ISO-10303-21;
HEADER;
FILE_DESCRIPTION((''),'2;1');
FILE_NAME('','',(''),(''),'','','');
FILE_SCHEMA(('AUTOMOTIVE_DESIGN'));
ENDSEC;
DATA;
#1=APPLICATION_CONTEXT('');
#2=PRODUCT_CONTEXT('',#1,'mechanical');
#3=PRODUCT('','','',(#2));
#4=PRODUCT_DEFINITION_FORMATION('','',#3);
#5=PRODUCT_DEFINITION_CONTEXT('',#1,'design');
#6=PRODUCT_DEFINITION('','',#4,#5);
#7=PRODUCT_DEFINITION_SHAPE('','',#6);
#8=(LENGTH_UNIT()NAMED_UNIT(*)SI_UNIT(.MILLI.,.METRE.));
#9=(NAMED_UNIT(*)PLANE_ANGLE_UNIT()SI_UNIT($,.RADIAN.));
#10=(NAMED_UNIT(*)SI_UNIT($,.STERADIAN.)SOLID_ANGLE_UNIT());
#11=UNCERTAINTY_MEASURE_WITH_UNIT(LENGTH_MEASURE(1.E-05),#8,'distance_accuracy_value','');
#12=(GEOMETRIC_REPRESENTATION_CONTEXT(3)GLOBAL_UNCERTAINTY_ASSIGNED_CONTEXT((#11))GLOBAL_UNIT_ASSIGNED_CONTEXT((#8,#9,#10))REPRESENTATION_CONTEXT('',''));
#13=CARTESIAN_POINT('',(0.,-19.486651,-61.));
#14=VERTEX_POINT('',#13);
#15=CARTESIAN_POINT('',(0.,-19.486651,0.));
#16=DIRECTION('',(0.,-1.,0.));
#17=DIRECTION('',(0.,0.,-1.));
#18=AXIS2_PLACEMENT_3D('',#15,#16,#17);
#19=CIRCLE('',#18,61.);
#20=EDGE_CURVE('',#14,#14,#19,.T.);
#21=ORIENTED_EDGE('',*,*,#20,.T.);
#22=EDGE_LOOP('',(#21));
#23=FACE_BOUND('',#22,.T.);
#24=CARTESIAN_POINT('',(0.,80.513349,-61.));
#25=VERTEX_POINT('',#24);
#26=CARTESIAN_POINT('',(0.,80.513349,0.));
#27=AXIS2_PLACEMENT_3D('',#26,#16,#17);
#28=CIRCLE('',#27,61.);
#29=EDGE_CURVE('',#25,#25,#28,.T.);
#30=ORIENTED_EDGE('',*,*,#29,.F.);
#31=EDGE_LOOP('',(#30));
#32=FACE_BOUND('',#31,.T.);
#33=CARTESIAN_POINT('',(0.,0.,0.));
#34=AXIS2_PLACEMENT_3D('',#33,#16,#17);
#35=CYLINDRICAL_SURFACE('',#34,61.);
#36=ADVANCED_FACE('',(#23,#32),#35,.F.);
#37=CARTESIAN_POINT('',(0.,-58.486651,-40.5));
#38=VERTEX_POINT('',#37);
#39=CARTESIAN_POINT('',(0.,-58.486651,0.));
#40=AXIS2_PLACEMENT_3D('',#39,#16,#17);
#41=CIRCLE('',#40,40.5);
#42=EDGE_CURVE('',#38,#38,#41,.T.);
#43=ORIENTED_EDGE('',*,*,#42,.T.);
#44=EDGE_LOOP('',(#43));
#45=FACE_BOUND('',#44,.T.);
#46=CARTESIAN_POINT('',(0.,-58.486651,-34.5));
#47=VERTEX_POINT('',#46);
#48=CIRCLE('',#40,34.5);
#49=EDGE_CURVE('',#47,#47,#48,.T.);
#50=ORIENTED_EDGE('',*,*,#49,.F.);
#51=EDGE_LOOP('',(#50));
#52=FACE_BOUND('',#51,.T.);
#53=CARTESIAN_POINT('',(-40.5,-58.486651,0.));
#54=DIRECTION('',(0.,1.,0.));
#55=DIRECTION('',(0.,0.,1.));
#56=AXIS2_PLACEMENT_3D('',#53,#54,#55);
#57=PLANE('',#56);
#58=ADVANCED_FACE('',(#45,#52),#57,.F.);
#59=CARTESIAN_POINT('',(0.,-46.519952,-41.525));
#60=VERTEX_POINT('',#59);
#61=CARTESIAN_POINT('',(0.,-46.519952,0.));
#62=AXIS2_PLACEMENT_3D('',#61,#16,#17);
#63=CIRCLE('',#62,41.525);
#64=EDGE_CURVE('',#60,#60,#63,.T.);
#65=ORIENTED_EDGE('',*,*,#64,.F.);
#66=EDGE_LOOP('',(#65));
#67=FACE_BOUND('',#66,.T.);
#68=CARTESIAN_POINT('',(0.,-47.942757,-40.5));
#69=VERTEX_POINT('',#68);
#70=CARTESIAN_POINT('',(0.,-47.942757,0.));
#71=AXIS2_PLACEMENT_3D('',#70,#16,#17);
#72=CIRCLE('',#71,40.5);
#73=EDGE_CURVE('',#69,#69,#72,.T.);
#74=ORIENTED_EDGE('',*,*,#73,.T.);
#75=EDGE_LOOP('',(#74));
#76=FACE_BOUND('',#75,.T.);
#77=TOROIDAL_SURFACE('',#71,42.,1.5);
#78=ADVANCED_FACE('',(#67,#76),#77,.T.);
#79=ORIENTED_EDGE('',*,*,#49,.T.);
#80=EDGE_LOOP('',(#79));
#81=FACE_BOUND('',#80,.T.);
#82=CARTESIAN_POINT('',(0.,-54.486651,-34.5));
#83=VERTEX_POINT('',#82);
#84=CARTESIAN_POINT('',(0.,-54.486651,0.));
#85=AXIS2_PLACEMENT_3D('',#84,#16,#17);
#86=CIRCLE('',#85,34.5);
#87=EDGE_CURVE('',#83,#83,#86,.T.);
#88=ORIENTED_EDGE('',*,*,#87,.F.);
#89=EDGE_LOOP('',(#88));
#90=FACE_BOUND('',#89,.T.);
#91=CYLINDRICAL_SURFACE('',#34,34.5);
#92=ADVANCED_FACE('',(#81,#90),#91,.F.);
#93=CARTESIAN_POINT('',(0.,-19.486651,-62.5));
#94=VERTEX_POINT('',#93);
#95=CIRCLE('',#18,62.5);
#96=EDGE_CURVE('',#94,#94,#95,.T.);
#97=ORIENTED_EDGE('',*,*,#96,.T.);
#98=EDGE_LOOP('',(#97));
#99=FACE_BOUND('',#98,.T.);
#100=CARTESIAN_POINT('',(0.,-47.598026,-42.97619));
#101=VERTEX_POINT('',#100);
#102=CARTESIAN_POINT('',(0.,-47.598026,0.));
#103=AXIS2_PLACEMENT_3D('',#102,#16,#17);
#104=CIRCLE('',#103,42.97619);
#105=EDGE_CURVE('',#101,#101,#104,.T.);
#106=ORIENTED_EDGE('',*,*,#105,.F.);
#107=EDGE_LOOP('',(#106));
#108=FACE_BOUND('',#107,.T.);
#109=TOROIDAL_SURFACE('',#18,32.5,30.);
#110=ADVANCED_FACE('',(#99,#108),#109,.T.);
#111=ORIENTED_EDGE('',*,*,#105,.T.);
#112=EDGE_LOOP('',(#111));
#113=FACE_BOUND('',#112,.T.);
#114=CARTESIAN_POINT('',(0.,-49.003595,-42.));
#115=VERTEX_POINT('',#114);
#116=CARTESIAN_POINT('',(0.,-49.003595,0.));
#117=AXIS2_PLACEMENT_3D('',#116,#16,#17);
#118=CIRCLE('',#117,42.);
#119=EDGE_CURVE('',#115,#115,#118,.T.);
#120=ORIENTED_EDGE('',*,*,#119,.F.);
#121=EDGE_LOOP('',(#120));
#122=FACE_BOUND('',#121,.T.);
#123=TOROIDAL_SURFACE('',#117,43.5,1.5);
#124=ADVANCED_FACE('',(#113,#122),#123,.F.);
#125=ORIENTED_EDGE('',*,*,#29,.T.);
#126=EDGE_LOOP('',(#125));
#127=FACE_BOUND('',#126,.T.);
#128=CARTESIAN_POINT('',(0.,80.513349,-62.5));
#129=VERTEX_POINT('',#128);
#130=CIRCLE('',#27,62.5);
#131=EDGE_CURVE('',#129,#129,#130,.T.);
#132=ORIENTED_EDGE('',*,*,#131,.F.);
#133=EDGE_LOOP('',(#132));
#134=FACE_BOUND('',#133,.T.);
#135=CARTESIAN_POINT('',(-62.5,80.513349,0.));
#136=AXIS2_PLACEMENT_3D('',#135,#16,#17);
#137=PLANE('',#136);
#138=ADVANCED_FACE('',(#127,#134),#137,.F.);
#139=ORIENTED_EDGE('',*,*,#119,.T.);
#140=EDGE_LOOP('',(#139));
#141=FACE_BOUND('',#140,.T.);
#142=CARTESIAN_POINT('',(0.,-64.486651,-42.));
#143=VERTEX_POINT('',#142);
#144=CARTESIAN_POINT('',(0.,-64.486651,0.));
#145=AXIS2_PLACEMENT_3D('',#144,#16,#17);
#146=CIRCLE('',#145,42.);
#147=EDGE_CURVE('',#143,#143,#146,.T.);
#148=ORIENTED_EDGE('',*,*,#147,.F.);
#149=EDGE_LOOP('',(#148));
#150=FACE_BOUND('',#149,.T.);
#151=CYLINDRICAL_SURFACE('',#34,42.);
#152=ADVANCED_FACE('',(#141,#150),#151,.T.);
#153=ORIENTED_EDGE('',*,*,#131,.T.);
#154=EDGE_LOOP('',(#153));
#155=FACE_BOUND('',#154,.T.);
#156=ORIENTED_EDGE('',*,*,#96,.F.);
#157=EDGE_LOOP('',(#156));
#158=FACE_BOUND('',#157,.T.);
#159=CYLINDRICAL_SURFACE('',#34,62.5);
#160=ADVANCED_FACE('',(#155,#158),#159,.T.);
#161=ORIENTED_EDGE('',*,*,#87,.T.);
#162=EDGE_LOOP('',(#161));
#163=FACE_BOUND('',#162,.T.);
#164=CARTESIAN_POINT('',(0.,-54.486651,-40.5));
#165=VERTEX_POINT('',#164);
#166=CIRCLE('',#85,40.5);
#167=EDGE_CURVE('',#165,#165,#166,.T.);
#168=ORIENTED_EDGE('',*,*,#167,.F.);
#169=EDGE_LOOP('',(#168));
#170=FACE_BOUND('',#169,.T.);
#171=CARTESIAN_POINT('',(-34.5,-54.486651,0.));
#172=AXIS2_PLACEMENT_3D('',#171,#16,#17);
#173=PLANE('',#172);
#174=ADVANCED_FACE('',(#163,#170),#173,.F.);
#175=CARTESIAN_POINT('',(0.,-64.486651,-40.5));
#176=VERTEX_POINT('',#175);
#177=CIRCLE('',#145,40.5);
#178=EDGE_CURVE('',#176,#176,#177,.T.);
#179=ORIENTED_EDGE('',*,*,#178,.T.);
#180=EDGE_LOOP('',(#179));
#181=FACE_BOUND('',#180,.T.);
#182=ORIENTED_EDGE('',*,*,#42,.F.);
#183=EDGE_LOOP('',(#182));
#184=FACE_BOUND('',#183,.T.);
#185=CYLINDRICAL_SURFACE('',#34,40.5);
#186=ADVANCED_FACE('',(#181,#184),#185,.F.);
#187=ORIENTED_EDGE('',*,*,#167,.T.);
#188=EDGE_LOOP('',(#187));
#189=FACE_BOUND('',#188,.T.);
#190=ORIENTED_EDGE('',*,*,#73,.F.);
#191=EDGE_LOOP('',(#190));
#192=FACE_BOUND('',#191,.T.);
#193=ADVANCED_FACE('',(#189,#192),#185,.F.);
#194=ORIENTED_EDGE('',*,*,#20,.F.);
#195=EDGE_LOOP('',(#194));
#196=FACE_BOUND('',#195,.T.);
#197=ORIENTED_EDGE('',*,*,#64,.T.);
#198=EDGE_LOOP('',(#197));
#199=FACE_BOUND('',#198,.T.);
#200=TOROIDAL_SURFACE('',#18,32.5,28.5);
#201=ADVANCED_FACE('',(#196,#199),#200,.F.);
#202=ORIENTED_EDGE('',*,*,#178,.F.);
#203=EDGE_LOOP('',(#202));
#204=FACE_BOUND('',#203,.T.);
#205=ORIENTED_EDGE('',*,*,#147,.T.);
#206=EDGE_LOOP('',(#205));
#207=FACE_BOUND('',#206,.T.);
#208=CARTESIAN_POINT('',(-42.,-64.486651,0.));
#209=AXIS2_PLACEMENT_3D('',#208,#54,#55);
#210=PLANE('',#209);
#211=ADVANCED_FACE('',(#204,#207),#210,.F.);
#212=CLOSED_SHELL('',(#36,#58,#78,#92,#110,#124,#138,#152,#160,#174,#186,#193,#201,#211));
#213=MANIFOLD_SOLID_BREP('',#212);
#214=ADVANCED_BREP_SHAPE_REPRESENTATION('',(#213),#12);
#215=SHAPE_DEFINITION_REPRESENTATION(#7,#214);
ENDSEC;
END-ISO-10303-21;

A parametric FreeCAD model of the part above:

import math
import FreeCAD as App
import Part
import Sketcher

doc = App.newDocument("Part")
body = doc.addObject("PartDesign::Body", "Body")

sketch1 = body.newObject("Sketcher::SketchObject", "Sketch")
sketch1.AttachmentSupport = (doc.getObject("XY_Plane"), [""])
sketch1.MapMode = "FlatFace"
sketch1.addGeometry([
    Part.LineSegment(App.Vector(-62.5, 80.5, 0), App.Vector(-62.5, -19.5, 0)),
    Part.ArcOfCircle(Part.Circle(App.Vector(-32.5, -19.5, 0), App.Vector(0, 0, 1), 30), math.radians(-180), math.radians(-110)),
    Part.ArcOfCircle(Part.Circle(App.Vector(-43.5, -49, 0), App.Vector(0, 0, 1), 1.5), math.radians(0), math.radians(70)),
    Part.LineSegment(App.Vector(-42, -49, 0), App.Vector(-42, -64.5, 0)),
    Part.LineSegment(App.Vector(-42, -64.5, 0), App.Vector(-40.5, -64.5, 0)),
    Part.LineSegment(App.Vector(-40.5, -64.5, 0), App.Vector(-40.5, -58.5, 0)),
    Part.LineSegment(App.Vector(-40.5, -58.5, 0), App.Vector(-34.5, -58.5, 0)),
    Part.LineSegment(App.Vector(-34.5, -58.5, 0), App.Vector(-34.5, -54.5, 0)),
    Part.LineSegment(App.Vector(-34.5, -54.5, 0), App.Vector(-40.5, -54.5, 0)),
    Part.LineSegment(App.Vector(-40.5, -54.5, 0), App.Vector(-40.5, -47.9, 0)),
    Part.ArcOfCircle(Part.Circle(App.Vector(-42, -47.9, 0), App.Vector(0, 0, 1), 1.5), math.radians(0), math.radians(72)),
    Part.ArcOfCircle(Part.Circle(App.Vector(-32.5, -19.5, 0), App.Vector(0, 0, 1), 28.5), math.radians(180), math.radians(252)),
    Part.LineSegment(App.Vector(-61, -19.5, 0), App.Vector(-61, 80.5, 0)),
    Part.LineSegment(App.Vector(-61, 80.5, 0), App.Vector(-62.5, 80.5, 0)),
], False)
sketch1.addConstraint([
    Sketcher.Constraint("Tangent", 0, 2, 1, 1),
    Sketcher.Constraint("Tangent", 1, 2, 2, 2),
    Sketcher.Constraint("Tangent", 2, 1, 3, 1),
    Sketcher.Constraint("Coincident", 3, 2, 4, 1),
    Sketcher.Constraint("Coincident", 4, 2, 5, 1),
    Sketcher.Constraint("Coincident", 5, 2, 6, 1),
    Sketcher.Constraint("Coincident", 6, 2, 7, 1),
    Sketcher.Constraint("Coincident", 7, 2, 8, 1),
    Sketcher.Constraint("Coincident", 8, 2, 9, 1),
    Sketcher.Constraint("Tangent", 9, 2, 10, 1),
    Sketcher.Constraint("Tangent", 10, 2, 11, 2),
    Sketcher.Constraint("Tangent", 11, 1, 12, 1),
    Sketcher.Constraint("Coincident", 12, 2, 13, 1),
    Sketcher.Constraint("Coincident", 13, 2, 0, 1),
    Sketcher.Constraint("Vertical", 0),
    Sketcher.Constraint("Vertical", 3),
    Sketcher.Constraint("Horizontal", 4),
    Sketcher.Constraint("Vertical", 5),
    Sketcher.Constraint("Horizontal", 6),
    Sketcher.Constraint("Vertical", 7),
    Sketcher.Constraint("Horizontal", 8),
    Sketcher.Constraint("Vertical", 9),
    Sketcher.Constraint("Vertical", 12),
    Sketcher.Constraint("Horizontal", 13),
    Sketcher.Constraint("Coincident", 11, 3, 1, 3),
    Sketcher.Constraint("Equal", 2, 10),
    Sketcher.Constraint("Vertical", 10, 3, 2, 1),
    Sketcher.Constraint("Vertical", 5, 2, 8, 2),
    Sketcher.Constraint("Equal", 4, 13),
    Sketcher.Constraint("Equal", 8, 5),
    Sketcher.Constraint("Radius", 1, 30.0),
    Sketcher.Constraint("Radius", 2, 1.5),
    Sketcher.Constraint("DistanceX", 6, 1, 6, 2, 6.0),
    Sketcher.Constraint("DistanceY", 0, 2, 0, 1, 100.0),
    Sketcher.Constraint("DistanceY", 7, 1, 7, 2, 4.0),
    Sketcher.Constraint("DistanceX", 10, 3, -1, 1, 42.0),
    Sketcher.Constraint("DistanceX", 11, 1, -1, 1, 61.0),
    Sketcher.Constraint("DistanceY", 3, 2, 11, 3, 45.0),
    Sketcher.Constraint("DistanceY", 1, 3, -1, 1, 19.486651),
])
revolution = body.newObject("PartDesign::Revolution", "Revolution")
revolution.Profile = sketch1
revolution.ReferenceAxis = (sketch1, ["V_Axis"])
revolution.Angle = 360

doc.recompute()
